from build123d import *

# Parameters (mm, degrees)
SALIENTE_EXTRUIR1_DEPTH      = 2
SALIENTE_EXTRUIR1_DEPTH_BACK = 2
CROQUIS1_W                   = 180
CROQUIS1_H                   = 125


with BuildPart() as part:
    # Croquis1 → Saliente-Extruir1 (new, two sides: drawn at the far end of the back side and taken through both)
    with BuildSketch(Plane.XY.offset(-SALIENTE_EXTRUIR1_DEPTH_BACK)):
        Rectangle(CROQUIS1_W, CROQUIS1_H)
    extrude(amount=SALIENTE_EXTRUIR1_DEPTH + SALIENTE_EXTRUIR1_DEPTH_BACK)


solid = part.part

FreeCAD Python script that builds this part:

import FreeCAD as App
import Part
import Sketcher

V = App.Vector


def add_polygon(sketch, points):
    """Adds a closed chain of lines whose ends are joined by coincident constraints."""
    first, n = sketch.GeometryCount, len(points)
    for a, b in zip(points, points[1:] + points[:1]):
        sketch.addGeometry(Part.LineSegment(App.Vector(*a, 0), App.Vector(*b, 0)), False)
    for i in range(n):
        sketch.addConstraint(Sketcher.Constraint("Coincident", first + i, 2, first + (i + 1) % n, 1))

doc = App.newDocument("Part")
body = doc.addObject("PartDesign::Body", "Body")

# Sketch on XY plane
sketch1 = body.newObject("Sketcher::SketchObject", "Sketch")
sketch1.AttachmentSupport = (doc.getObject("XY_Plane"), [""])
sketch1.MapMode = "FlatFace"
add_polygon(sketch1, [(-90, 62), (-90, -62), (90, -62), (90, 62)])  # lines 0-3
sketch1.addConstraint(Sketcher.Constraint("Vertical", 0))
sketch1.addConstraint(Sketcher.Constraint("Horizontal", 1))
sketch1.addConstraint(Sketcher.Constraint("Vertical", 2))
sketch1.addConstraint(Sketcher.Constraint("Horizontal", 3))
sketch1.addConstraint(Sketcher.Constraint("Symmetric", 0, 2, 2, 2, -1, 1))
sketch1.addConstraint(Sketcher.Constraint("DistanceX", 1, 1, 1, 2, 180.0))
sketch1.addConstraint(Sketcher.Constraint("DistanceY", 0, 2, 0, 1, 125.0))
pad1 = body.newObject("PartDesign::Pad", "Pad")
pad1.Profile = sketch1
pad1.Type = "TwoLengths"
pad1.Length = 2
pad1.Length2 = 2

doc.recompute()
